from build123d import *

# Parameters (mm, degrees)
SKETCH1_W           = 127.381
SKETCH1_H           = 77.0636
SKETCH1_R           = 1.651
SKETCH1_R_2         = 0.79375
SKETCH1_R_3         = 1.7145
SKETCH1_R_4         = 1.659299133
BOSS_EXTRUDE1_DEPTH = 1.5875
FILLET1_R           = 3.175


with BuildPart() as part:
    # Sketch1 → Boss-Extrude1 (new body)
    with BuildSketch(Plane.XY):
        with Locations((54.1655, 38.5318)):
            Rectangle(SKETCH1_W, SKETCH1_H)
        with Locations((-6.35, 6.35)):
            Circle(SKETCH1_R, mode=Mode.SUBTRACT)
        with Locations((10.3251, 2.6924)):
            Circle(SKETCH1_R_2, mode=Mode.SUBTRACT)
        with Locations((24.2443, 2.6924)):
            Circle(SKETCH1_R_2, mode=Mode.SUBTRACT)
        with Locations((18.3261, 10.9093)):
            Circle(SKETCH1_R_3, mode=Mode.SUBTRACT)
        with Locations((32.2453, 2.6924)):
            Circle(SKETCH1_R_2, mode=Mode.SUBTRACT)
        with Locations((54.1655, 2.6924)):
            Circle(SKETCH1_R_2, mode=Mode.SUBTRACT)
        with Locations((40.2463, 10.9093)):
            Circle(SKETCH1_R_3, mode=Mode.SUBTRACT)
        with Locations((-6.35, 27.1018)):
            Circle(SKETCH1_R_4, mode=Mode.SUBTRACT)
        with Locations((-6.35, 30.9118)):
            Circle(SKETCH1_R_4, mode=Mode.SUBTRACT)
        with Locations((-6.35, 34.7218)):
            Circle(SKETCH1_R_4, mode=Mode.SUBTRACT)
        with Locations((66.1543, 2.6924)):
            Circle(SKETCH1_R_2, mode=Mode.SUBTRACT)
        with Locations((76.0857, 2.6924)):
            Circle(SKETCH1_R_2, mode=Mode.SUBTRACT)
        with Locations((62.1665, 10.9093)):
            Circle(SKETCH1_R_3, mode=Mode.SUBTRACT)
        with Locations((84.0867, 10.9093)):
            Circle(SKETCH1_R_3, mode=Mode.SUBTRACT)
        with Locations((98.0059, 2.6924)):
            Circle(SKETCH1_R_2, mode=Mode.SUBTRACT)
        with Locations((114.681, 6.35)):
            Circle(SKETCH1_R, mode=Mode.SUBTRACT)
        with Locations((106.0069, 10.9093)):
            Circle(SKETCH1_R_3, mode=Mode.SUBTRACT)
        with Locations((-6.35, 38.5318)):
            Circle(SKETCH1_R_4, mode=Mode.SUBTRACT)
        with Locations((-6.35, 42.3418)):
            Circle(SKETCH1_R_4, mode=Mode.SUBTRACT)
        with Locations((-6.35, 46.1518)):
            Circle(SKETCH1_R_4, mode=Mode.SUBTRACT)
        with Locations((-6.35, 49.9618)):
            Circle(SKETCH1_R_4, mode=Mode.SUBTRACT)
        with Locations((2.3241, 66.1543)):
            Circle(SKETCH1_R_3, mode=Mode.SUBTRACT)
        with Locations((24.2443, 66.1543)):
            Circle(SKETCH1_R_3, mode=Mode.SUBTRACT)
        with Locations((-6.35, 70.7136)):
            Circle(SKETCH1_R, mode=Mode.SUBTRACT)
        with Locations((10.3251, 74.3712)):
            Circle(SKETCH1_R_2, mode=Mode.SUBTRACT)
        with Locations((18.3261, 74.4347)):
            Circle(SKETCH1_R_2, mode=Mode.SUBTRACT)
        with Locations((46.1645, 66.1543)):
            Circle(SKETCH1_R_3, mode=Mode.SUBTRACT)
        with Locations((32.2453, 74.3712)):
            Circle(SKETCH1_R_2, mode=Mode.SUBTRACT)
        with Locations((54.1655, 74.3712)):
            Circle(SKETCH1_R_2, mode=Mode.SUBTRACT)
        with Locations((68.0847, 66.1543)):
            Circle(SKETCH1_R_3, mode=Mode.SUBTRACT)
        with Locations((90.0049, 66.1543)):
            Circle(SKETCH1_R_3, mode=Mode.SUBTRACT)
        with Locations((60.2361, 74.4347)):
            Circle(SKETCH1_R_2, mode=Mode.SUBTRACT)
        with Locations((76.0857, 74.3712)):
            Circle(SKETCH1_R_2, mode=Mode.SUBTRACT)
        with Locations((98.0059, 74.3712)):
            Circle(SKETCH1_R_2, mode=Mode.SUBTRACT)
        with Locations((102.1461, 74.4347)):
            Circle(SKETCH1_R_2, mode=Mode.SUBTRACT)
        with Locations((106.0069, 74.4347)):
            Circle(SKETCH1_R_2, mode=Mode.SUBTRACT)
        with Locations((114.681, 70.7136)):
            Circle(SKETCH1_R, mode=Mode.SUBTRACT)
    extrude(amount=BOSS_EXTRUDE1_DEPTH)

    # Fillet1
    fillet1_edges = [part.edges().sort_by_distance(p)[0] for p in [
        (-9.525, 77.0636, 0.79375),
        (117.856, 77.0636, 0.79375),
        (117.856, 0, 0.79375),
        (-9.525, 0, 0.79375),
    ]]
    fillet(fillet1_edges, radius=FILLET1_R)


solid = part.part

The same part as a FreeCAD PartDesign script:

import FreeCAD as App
import Part
import Sketcher
Q = App.Units.Quantity


def edges_at(feature, points):
    """Names of the edges that pass closest to the given points."""
    edges = feature.Shape.Edges
    near = lambda p: min(range(len(edges)), key=lambda i: edges[i].distToShape(Part.Vertex(*p))[0])
    return sorted({f"Edge{near(p) + 1}" for p in points})

doc = App.newDocument("Part")
body = doc.addObject("PartDesign::Body", "Body")

sketch1 = body.newObject("Sketcher::SketchObject", "Sketch")
sketch1.AttachmentSupport = (doc.getObject("XY_Plane"), [""])
sketch1.MapMode = "FlatFace"
sketch1.addGeometry([
    Part.LineSegment(App.Vector(-9.525, 77.0636, 0), App.Vector(-9.525, 0, 0)),
    Part.LineSegment(App.Vector(-9.525, 0, 0), App.Vector(117.856, 0, 0)),
    Part.LineSegment(App.Vector(117.856, 0, 0), App.Vector(117.856, 77.0636, 0)),
    Part.LineSegment(App.Vector(117.856, 77.0636, 0), App.Vector(-9.525, 77.0636, 0)),
    Part.Circle(App.Vector(-6.35, 6.35, 0), App.Vector(0, 0, 1), 1.651),
    Part.Circle(App.Vector(10.3251, 2.6924, 0), App.Vector(0, 0, 1), 0.79375),
    Part.Circle(App.Vector(18.3261, 10.9093, 0), App.Vector(0, 0, 1), 1.7145),
    Part.Circle(App.Vector(24.2443, 2.6924, 0), App.Vector(0, 0, 1), 0.79375),
    Part.Circle(App.Vector(32.2453, 2.6924, 0), App.Vector(0, 0, 1), 0.79375),
    Part.Circle(App.Vector(40.2463, 10.9093, 0), App.Vector(0, 0, 1), 1.7145),
    Part.Circle(App.Vector(-6.35, 27.1018, 0), App.Vector(0, 0, 1), 1.659299),
    Part.Circle(App.Vector(-6.35, 30.9118, 0), App.Vector(0, 0, 1), 1.659299),
    Part.Circle(App.Vector(-6.35, 34.7218, 0), App.Vector(0, 0, 1), 1.659299),
    Part.Circle(App.Vector(-6.35, 38.5318, 0), App.Vector(0, 0, 1), 1.659299),
    Part.Circle(App.Vector(54.1655, 2.6924, 0), App.Vector(0, 0, 1), 0.79375),
    Part.Circle(App.Vector(66.1543, 2.6924, 0), App.Vector(0, 0, 1), 0.79375),
    Part.Circle(App.Vector(62.1665, 10.9093, 0), App.Vector(0, 0, 1), 1.7145),
    Part.Circle(App.Vector(76.0857, 2.6924, 0), App.Vector(0, 0, 1), 0.79375),
    Part.Circle(App.Vector(84.0867, 10.9093, 0), App.Vector(0, 0, 1), 1.7145),
    Part.Circle(App.Vector(98.0059, 2.6924, 0), App.Vector(0, 0, 1), 0.79375),
    Part.Circle(App.Vector(114.681, 6.35, 0), App.Vector(0, 0, 1), 1.651),
    Part.Circle(App.Vector(106.0069, 10.9093, 0), App.Vector(0, 0, 1), 1.7145),
    Part.Circle(App.Vector(-6.35, 42.3418, 0), App.Vector(0, 0, 1), 1.659299),
    Part.Circle(App.Vector(-6.35, 46.1518, 0), App.Vector(0, 0, 1), 1.659299),
    Part.Circle(App.Vector(-6.35, 49.9618, 0), App.Vector(0, 0, 1), 1.659299),
    Part.Circle(App.Vector(2.3241, 66.1543, 0), App.Vector(0, 0, 1), 1.7145),
    Part.Circle(App.Vector(-6.35, 70.7136, 0), App.Vector(0, 0, 1), 1.651),
    Part.Circle(App.Vector(10.3251, 74.3712, 0), App.Vector(0, 0, 1), 0.79375),
    Part.Circle(App.Vector(18.3261, 74.4347, 0), App.Vector(0, 0, 1), 0.79375),
    Part.Circle(App.Vector(24.2443, 66.1543, 0), App.Vector(0, 0, 1), 1.7145),
    Part.Circle(App.Vector(32.2453, 74.3712, 0), App.Vector(0, 0, 1), 0.79375),
    Part.Circle(App.Vector(46.1645, 66.1543, 0), App.Vector(0, 0, 1), 1.7145),
    Part.Circle(App.Vector(68.0847, 66.1543, 0), App.Vector(0, 0, 1), 1.7145),
    Part.Circle(App.Vector(54.1655, 74.3712, 0), App.Vector(0, 0, 1), 0.79375),
    Part.Circle(App.Vector(60.2361, 74.4347, 0), App.Vector(0, 0, 1), 0.79375),
    Part.Circle(App.Vector(76.0857, 74.3712, 0), App.Vector(0, 0, 1), 0.79375),
    Part.Circle(App.Vector(90.0049, 66.1543, 0), App.Vector(0, 0, 1), 1.7145),
    Part.Circle(App.Vector(98.0059, 74.3712, 0), App.Vector(0, 0, 1), 0.79375),
    Part.Circle(App.Vector(102.1461, 74.4347, 0), App.Vector(0, 0, 1), 0.79375),
    Part.Circle(App.Vector(106.0069, 74.4347, 0), App.Vector(0, 0, 1), 0.79375),
    Part.Circle(App.Vector(114.681, 70.7136, 0), App.Vector(0, 0, 1), 1.651),
], False)
sketch1.addConstraint([
    Sketcher.Constraint("Coincident", 0, 2, 1, 1),
    Sketcher.Constraint("Coincident", 1, 2, 2, 1),
    Sketcher.Constraint("Coincident", 2, 2, 3, 1),
    Sketcher.Constraint("Coincident", 3, 2, 0, 1),
    Sketcher.Constraint("Vertical", 0),
    Sketcher.Constraint("Horizontal", 1),
    Sketcher.Constraint("Vertical", 2),
    Sketcher.Constraint("Horizontal", 3),
    Sketcher.Constraint("Equal", 5, 7),
    Sketcher.Constraint("Equal", 7, 8),
    Sketcher.Constraint("Equal", 6, 9),
    Sketcher.Constraint("Equal", 10, 11),
    Sketcher.Constraint("Equal", 11, 12),
    Sketcher.Constraint("Equal", 12, 13),
    Sketcher.Constraint("Equal", 8, 14),
    Sketcher.Constraint("Equal", 14, 15),
    Sketcher.Constraint("Equal", 9, 16),
    Sketcher.Constraint("Equal", 15, 17),
    Sketcher.Constraint("Equal", 16, 18),
    Sketcher.Constraint("Equal", 17, 19),
    Sketcher.Constraint("Equal", 4, 20),
    Sketcher.Constraint("Equal", 18, 21),
    Sketcher.Constraint("Equal", 13, 22),
    Sketcher.Constraint("Equal", 22, 23),
    Sketcher.Constraint("Equal", 23, 24),
    Sketcher.Constraint("Equal", 21, 25),
    Sketcher.Constraint("Equal", 20, 26),
    Sketcher.Constraint("Equal", 19, 27),
    Sketcher.Constraint("Equal", 27, 28),
    Sketcher.Constraint("Equal", 25, 29),
    Sketcher.Constraint("Equal", 28, 30),
    Sketcher.Constraint("Equal", 29, 31),
    Sketcher.Constraint("Equal", 31, 32),
    Sketcher.Constraint("Equal", 30, 33),
    Sketcher.Constraint("Equal", 33, 34),
    Sketcher.Constraint("Equal", 34, 35),
    Sketcher.Constraint("Equal", 32, 36),
    Sketcher.Constraint("Equal", 35, 37),
    Sketcher.Constraint("Equal", 37, 38),
    Sketcher.Constraint("Equal", 38, 39),
    Sketcher.Constraint("Equal", 26, 40),
    Sketcher.Constraint("PointOnObject", 0, 2, -1),
    Sketcher.Constraint("Horizontal", 5, 3, 7, 3),
    Sketcher.Constraint("Horizontal", 7, 3, 8, 3),
    Sketcher.Constraint("Horizontal", 6, 3, 9, 3),
    Sketcher.Constraint("Horizontal", 8, 3, 14, 3),
    Sketcher.Constraint("Horizontal", 14, 3, 15, 3),
    Sketcher.Constraint("Horizontal", 9, 3, 16, 3),
    Sketcher.Constraint("Horizontal", 15, 3, 17, 3),
    Sketcher.Constraint("Horizontal", 16, 3, 18, 3),
    Sketcher.Constraint("Horizontal", 17, 3, 19, 3),
    Sketcher.Constraint("Horizontal", 4, 3, 20, 3),
    Sketcher.Constraint("Horizontal", 18, 3, 21, 3),
    Sketcher.Constraint("Horizontal", 25, 3, 29, 3),
    Sketcher.Constraint("Horizontal", 27, 3, 30, 3),
    Sketcher.Constraint("Horizontal", 29, 3, 31, 3),
    Sketcher.Constraint("Horizontal", 31, 3, 32, 3),
    Sketcher.Constraint("Horizontal", 30, 3, 33, 3),
    Sketcher.Constraint("Horizontal", 28, 3, 34, 3),
    Sketcher.Constraint("Horizontal", 33, 3, 35, 3),
    Sketcher.Constraint("Horizontal", 32, 3, 36, 3),
    Sketcher.Constraint("Horizontal", 35, 3, 37, 3),
    Sketcher.Constraint("Horizontal", 34, 3, 38, 3),
    Sketcher.Constraint("Horizontal", 38, 3, 39, 3),
    Sketcher.Constraint("Horizontal", 26, 3, 40, 3),
    Sketcher.Constraint("Vertical", 4, 3, 10, 3),
    Sketcher.Constraint("Vertical", 10, 3, 11, 3),
    Sketcher.Constraint("Vertical", 11, 3, 12, 3),
    Sketcher.Constraint("Vertical", 12, 3, 13, 3),
    Sketcher.Constraint("Vertical", 13, 3, 22, 3),
    Sketcher.Constraint("Vertical", 22, 3, 23, 3),
    Sketcher.Constraint("Vertical", 23, 3, 24, 3),
    Sketcher.Constraint("Vertical", 24, 3, 26, 3),
    Sketcher.Constraint("Vertical", 5, 3, 27, 3),
    Sketcher.Constraint("Vertical", 6, 3, 28, 3),
    Sketcher.Constraint("Vertical", 7, 3, 29, 3),
    Sketcher.Constraint("Vertical", 8, 3, 30, 3),
    Sketcher.Constraint("Vertical", 14, 3, 33, 3),
    Sketcher.Constraint("Vertical", 17, 3, 35, 3),
    Sketcher.Constraint("Vertical", 19, 3, 37, 3),
    Sketcher.Constraint("Vertical", 21, 3, 39, 3),
    Sketcher.Constraint("Vertical", 20, 3, 40, 3),
    Sketcher.Constraint("Diameter", 4, Q("0.13 in")),
    Sketcher.Constraint("Diameter", 5, Q("0.0625 in")),
    Sketcher.Constraint("Diameter", 6, Q("0.135 in")),
    Sketcher.Constraint("DistanceY", 10, 3, 12, 3, Q("0.3 in")),
    Sketcher.Constraint("DistanceY", 11, 3, 13, 3, Q("0.3 in")),
    Sketcher.Constraint("DistanceY", 12, 3, 22, 3, Q("0.3 in")),
    Sketcher.Constraint("DistanceY", 13, 3, 23, 3, Q("0.3 in")),
    Sketcher.Constraint("DistanceY", 22, 3, 24, 3, Q("0.3 in")),
    Sketcher.Constraint("Diameter", 10, 3.318598),
    Sketcher.Constraint("DistanceX", 1, 1, 1, 2, Q("5.015 in")),
    Sketcher.Constraint("DistanceY", 0, 2, 0, 1, Q("3.034 in")),
    Sketcher.Constraint("DistanceX", 4, 3, -1, 1, Q("0.25 in")),
    Sketcher.Constraint("DistanceY", -1, 1, 4, 3, Q("0.25 in")),
    Sketcher.Constraint("DistanceX", -1, 1, 1, 2, Q("4.64 in")),
    Sketcher.Constraint("DistanceX", 7, 3, 9, 3, Q("0.63 in")),
    Sketcher.Constraint("DistanceY", 10, 3, 11, 3, Q("0.15 in")),
    Sketcher.Constraint("DistanceX", 9, 3, 15, 3, Q("1.02 in")),
    Sketcher.Constraint("DistanceX", 25, 3, 28, 3, Q("0.63 in")),
    Sketcher.Constraint("DistanceX", 34, 3, 38, 3, Q("1.65 in")),
    Sketcher.Constraint("DistanceX", 36, 3, 39, 3, Q("0.63 in")),
    Sketcher.Constraint("DistanceY", 40, 3, 2, 2, Q("0.25 in")),
    Sketcher.Constraint("DistanceY", -1, 1, 5, 3, Q("0.106 in")),
    Sketcher.Constraint("DistanceY", -1, 1, 10, 3, Q("1.067 in")),
    Sketcher.Constraint("DistanceX", -1, 1, 20, 3, Q("4.515 in")),
    Sketcher.Constraint("DistanceY", -1, 1, 27, 3, Q("2.928 in")),
    Sketcher.Constraint("DistanceX", 5, 3, 6, 3, Q("0.315 in")),
    Sketcher.Constraint("DistanceX", 6, 3, 7, 3, Q("0.233 in")),
    Sketcher.Constraint("DistanceX", 7, 3, 8, 3, Q("0.315 in")),
    Sketcher.Constraint("DistanceY", 6, 3, 12, 3, Q("0.9375 in")),
    Sketcher.Constraint("DistanceX", 9, 3, 14, 3, Q("0.548 in")),
    Sketcher.Constraint("DistanceX", 16, 3, 15, 3, Q("0.157 in")),
    Sketcher.Constraint("DistanceX", 15, 3, 17, 3, Q("0.391 in")),
    Sketcher.Constraint("DistanceX", 17, 3, 18, 3, Q("0.315 in")),
    Sketcher.Constraint("DistanceX", 18, 3, 19, 3, Q("0.548 in")),
    Sketcher.Constraint("DistanceX", 19, 3, 21, 3, Q("0.315 in")),
    Sketcher.Constraint("DistanceY", 22, 3, 25, 3, Q("0.9375 in")),
    Sketcher.Constraint("DistanceY", 25, 3, 28, 3, Q("0.326 in")),
    Sketcher.Constraint("DistanceX", 30, 3, 31, 3, Q("0.548 in")),
    Sketcher.Constraint("DistanceX", 31, 3, 32, 3, Q("0.863 in")),
    Sketcher.Constraint("DistanceX", 33, 3, 34, 3, Q("0.239 in")),
    Sketcher.Constraint("DistanceX", -1, 1, 5, 3, Q("0.4065 in")),
])
pad1 = body.newObject("PartDesign::Pad", "Pad")
pad1.Profile = sketch1
pad1.Length = Q("0.0625 in")
doc.recompute()

fillet = body.newObject("PartDesign::Fillet", "Fillet")
fillet.Base = (pad1, edges_at(pad1, [
    (-9.525, 77.064, 0.794),
    (117.856, 77.064, 0.794),
    (117.856, 0, 0.794),
    (-9.525, 0, 0.794),
]))
fillet.Radius = Q("0.125 in")

doc.recompute()
